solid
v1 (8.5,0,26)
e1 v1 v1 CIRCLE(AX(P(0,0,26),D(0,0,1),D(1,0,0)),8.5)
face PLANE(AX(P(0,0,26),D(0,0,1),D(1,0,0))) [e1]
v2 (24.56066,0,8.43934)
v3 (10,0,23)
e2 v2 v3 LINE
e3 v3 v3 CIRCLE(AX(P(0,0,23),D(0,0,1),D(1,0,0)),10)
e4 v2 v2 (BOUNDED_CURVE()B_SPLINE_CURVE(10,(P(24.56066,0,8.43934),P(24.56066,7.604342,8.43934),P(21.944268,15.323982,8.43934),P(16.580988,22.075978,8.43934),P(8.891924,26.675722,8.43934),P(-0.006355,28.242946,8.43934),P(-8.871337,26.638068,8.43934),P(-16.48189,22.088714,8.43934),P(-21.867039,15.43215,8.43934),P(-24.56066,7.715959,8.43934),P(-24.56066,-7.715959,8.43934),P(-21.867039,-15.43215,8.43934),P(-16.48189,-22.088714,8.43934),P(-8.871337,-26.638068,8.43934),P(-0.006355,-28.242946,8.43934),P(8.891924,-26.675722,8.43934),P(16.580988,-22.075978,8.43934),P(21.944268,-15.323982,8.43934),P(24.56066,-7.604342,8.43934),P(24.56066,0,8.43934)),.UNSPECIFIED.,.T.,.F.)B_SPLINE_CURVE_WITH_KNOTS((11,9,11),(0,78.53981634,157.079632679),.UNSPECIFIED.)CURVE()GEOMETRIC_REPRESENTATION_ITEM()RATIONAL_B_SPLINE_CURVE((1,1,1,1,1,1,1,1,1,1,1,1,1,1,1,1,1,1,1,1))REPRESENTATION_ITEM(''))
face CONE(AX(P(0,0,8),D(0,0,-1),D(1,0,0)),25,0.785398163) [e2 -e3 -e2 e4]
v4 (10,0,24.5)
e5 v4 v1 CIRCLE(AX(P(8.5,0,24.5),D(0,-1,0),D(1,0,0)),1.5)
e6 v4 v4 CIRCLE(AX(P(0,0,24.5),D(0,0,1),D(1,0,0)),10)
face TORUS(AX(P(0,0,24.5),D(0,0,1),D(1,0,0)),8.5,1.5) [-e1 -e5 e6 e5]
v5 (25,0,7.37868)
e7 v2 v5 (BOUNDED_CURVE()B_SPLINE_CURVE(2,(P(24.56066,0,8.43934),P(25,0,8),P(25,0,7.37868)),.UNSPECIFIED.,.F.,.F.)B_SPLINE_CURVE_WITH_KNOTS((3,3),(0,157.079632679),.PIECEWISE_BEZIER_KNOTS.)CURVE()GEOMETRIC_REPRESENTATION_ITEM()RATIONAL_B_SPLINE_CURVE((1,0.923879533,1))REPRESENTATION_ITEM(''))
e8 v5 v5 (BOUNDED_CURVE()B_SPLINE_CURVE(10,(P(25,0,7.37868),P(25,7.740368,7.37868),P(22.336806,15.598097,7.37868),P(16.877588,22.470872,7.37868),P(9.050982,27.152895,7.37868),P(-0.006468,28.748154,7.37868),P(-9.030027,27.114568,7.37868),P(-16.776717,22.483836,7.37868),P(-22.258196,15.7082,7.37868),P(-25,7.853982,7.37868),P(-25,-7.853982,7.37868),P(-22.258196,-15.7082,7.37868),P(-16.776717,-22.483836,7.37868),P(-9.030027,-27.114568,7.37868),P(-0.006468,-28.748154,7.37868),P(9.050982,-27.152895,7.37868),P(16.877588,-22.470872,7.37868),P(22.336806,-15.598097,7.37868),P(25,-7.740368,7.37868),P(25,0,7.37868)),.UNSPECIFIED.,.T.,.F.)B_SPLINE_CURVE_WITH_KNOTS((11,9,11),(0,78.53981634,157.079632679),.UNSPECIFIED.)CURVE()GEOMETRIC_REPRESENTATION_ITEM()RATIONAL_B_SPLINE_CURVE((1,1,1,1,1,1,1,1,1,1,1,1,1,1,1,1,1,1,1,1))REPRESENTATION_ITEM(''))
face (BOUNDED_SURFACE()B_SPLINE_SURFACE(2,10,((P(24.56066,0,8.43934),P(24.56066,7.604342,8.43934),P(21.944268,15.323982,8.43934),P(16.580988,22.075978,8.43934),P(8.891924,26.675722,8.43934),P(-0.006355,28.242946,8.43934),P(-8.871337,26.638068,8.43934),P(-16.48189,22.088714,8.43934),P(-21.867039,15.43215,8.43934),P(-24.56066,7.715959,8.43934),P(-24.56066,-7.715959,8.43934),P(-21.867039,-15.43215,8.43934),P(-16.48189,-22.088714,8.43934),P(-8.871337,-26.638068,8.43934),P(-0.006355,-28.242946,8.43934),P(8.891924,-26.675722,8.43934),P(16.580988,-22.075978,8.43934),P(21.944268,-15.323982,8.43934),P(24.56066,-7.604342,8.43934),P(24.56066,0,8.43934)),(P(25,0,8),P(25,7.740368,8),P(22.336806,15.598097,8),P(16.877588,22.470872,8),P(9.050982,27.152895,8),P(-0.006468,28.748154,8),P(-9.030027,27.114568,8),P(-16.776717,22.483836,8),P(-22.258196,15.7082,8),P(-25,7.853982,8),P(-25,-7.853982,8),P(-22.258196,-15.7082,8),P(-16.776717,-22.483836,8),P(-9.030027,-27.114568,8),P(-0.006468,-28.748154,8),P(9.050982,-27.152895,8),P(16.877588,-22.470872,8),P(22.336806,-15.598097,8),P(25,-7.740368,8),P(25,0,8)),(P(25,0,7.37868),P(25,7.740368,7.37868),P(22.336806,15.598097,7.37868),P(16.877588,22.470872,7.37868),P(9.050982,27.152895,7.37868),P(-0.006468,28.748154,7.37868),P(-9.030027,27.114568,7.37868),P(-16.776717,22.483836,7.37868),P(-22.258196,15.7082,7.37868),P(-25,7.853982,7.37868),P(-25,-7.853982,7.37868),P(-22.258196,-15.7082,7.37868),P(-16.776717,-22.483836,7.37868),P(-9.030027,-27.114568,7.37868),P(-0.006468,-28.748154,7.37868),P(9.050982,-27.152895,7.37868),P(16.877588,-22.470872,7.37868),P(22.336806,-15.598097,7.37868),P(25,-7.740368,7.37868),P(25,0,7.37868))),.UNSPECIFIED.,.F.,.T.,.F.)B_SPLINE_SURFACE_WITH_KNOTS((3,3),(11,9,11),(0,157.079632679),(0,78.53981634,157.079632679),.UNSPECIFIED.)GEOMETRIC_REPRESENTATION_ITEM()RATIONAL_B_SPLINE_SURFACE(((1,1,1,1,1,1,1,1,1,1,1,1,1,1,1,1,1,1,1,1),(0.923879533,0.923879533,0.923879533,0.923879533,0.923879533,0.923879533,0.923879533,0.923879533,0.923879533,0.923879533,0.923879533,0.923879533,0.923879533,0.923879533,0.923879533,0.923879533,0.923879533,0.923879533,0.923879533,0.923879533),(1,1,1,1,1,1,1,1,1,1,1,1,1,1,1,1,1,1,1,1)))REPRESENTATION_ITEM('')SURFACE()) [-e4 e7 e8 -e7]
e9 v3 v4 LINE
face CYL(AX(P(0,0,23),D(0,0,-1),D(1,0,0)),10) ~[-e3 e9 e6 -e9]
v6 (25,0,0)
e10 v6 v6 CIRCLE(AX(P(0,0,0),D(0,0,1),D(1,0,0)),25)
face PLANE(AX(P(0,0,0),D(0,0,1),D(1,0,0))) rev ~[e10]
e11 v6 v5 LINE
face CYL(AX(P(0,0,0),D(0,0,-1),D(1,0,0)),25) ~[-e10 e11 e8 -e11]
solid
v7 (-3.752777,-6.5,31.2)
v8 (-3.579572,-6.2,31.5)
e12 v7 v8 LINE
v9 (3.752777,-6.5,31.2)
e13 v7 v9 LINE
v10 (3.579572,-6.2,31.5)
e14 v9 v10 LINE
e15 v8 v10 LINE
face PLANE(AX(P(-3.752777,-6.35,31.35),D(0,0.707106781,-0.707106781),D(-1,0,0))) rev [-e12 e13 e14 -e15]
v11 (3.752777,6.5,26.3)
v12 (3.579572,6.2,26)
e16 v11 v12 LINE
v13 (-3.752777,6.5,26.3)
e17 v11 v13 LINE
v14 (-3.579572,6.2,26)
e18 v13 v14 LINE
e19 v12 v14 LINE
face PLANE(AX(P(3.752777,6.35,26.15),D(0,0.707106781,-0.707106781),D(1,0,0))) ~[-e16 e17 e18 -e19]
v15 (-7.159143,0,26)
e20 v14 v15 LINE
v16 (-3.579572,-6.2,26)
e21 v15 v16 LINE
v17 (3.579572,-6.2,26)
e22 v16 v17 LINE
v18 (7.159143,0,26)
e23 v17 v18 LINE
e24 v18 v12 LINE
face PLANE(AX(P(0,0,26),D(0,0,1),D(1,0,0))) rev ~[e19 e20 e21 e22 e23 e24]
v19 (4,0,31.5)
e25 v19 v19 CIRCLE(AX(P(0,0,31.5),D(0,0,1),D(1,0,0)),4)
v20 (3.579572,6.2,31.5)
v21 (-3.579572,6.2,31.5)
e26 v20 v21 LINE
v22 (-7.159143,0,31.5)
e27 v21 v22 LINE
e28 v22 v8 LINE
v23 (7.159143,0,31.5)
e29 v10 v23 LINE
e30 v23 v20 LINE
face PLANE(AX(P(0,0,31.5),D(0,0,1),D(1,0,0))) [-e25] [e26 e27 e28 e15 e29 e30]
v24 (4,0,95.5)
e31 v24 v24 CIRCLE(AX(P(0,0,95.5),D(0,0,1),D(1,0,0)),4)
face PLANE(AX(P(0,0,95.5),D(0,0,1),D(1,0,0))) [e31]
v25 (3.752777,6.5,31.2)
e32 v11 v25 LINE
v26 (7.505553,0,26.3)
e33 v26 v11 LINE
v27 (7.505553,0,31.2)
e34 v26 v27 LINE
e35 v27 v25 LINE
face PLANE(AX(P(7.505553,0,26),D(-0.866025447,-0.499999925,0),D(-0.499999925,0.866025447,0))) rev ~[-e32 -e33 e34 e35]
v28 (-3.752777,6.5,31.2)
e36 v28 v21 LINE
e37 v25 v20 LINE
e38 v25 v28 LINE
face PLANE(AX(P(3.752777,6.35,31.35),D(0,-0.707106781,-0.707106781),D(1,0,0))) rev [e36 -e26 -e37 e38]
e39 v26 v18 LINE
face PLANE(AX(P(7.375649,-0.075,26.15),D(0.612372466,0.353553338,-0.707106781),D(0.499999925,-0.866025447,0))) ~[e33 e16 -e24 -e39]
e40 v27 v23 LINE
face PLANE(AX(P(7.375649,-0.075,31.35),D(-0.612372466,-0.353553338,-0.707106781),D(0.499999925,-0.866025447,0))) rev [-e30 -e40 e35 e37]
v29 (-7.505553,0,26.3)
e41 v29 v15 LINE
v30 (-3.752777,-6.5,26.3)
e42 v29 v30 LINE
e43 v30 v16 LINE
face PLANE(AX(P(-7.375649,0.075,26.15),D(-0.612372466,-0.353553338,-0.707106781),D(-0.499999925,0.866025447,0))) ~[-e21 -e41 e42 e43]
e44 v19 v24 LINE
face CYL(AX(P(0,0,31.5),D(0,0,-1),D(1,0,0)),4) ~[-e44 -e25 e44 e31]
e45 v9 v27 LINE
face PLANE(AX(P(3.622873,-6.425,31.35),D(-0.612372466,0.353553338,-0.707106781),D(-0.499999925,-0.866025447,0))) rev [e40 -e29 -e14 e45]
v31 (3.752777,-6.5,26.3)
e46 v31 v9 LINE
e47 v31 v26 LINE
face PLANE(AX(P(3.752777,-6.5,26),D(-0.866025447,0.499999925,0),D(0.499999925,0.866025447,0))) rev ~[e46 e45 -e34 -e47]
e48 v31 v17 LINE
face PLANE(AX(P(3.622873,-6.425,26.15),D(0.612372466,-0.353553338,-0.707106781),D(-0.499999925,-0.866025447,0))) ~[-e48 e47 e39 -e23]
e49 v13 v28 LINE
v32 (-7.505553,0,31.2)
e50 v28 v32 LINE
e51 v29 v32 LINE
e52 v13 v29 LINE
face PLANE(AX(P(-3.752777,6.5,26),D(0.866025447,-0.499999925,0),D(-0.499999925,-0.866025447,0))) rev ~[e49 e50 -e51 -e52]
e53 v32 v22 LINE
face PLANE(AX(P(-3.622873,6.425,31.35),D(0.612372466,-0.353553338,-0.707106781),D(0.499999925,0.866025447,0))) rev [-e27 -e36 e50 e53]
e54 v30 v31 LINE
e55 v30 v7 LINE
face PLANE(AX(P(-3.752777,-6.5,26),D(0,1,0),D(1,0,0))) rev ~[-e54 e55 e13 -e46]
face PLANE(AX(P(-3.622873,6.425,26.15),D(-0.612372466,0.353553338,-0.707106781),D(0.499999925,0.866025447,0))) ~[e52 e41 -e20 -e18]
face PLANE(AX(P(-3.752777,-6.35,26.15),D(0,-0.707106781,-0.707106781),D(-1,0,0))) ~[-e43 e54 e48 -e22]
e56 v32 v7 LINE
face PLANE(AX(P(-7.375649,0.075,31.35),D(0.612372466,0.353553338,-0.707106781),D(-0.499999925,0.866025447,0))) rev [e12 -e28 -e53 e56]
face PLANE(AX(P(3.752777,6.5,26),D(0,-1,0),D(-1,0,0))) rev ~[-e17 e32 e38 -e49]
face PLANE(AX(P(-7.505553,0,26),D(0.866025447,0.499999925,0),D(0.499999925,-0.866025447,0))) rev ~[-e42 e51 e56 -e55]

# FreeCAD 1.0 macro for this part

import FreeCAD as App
import Part
import Sketcher
from FreeCAD import Vector
Q = App.Units.Quantity


def edges_at(feature, points):
    """Names of the edges that pass closest to the given points."""
    edges = feature.Shape.Edges
    near = lambda p: min(range(len(edges)), key=lambda i: edges[i].distToShape(Part.Vertex(*p))[0])
    return sorted({f"Edge{near(p) + 1}" for p in points})

doc = App.newDocument("Part")
body = doc.addObject("PartDesign::Body", "Body")

# Sketch on XY plane
sketch1 = body.newObject("Sketcher::SketchObject", "Sketch")
sketch1.AttachmentSupport = (doc.getObject("XY_Plane"), [""])
sketch1.MapMode = "FlatFace"
sketch1.addGeometry(Part.Circle(Vector(0, 0, 0), Vector(0, 0, 1), 25), False)
sketch1.addConstraint([
    Sketcher.Constraint("Coincident", 0, 3, -1, 1),
    Sketcher.Constraint("Diameter", 0, Q("50 mm")),
])
pad1 = body.newObject("PartDesign::Pad", "Pad")
pad1.Profile = sketch1
pad1.Length = 23
doc.recompute()

chamfer = body.newObject("PartDesign::Chamfer", "Chamfer")
chamfer.Base = (pad1, edges_at(pad1, [(-25, 0, 23)]))
chamfer.Size = 15

# Sketch on XY plane
sketch2 = body.newObject("Sketcher::SketchObject", "Sketch001")
sketch2.AttachmentSupport = (doc.getObject("XY_Plane"), [""])
sketch2.MapMode = "FlatFace"
sketch2.AttachmentOffset = App.Placement(Vector(0, 0, 23), App.Rotation())
sketch2.addGeometry(Part.Circle(Vector(0, 0, 0), Vector(0, 0, 1), 10), False)
sketch2.addConstraint([
    Sketcher.Constraint("Coincident", 0, 3, -1, 1),
    Sketcher.Constraint("Diameter", 0, Q("20 mm")),
])
pad2 = body.newObject("PartDesign::Pad", "Pad001")
pad2.Profile = sketch2
pad2.Length = 3
doc.recompute()

fillet = body.newObject("PartDesign::Fillet", "Fillet")
fillet.Base = (pad2, edges_at(pad2, [(-10, 0, 26), (-25, 0, 8)]))
fillet.Radius = 1.5
body2 = doc.addObject("PartDesign::Body", "Body001")

# Sketch on XY plane
sketch3 = body2.newObject("Sketcher::SketchObject", "Sketch002")
sketch3.AttachmentSupport = (doc.getObject("XY_Plane001"), [""])
sketch3.MapMode = "FlatFace"
sketch3.AttachmentOffset = App.Placement(Vector(0, 0, 26), App.Rotation())
sketch3.addGeometry([
    Part.LineSegment(Vector(8, 0, 0), Vector(4, 6, 0)),  # 0
    Part.LineSegment(Vector(4, 6, 0), Vector(-4, 6, 0)),  # 1
    Part.LineSegment(Vector(-4, 6, 0), Vector(-8, 0, 0)),  # 2
    Part.LineSegment(Vector(-8, 0, 0), Vector(-4, -6, 0)),  # 3
    Part.LineSegment(Vector(-4, -6, 0), Vector(4, -6, 0)),  # 4
    Part.LineSegment(Vector(4, -6, 0), Vector(8, 0, 0)),  # 5
], False)
sketch3.addConstraint([
    Sketcher.Constraint("Coincident", 0, 2, 1, 1),
    Sketcher.Constraint("Coincident", 1, 2, 2, 1),
    Sketcher.Constraint("Coincident", 2, 2, 3, 1),
    Sketcher.Constraint("Coincident", 3, 2, 4, 1),
    Sketcher.Constraint("Coincident", 4, 2, 5, 1),
    Sketcher.Constraint("Coincident", 5, 2, 0, 1),
    Sketcher.Constraint("Horizontal", 1),
    Sketcher.Constraint("Horizontal", 4),
    Sketcher.Constraint("Symmetric", 0, 2, 3, 2, -1, 1),
    Sketcher.Constraint("Symmetric", 2, 2, 5, 2, -1, 1),
    Sketcher.Constraint("PointOnObject", 2, 2, -1),
    Sketcher.Constraint("Parallel", 2, 5),
    Sketcher.Constraint("Vertical", 1, 2, 3, 2),
    Sketcher.Constraint("Angle", 0, Q("119.999995 deg")),
    Sketcher.Constraint("DistanceY", 3, 2, 1, 2, Q("13 mm")),
    Sketcher.Constraint("DistanceX", 1, 2, 1, 1, Q("7.505554 mm")),
])
pad3 = body2.newObject("PartDesign::Pad", "Pad002")
pad3.Profile = sketch3
pad3.Length = 5.5
doc.recompute()

chamfer2 = body2.newObject("PartDesign::Chamfer", "Chamfer001")
chamfer2.Base = (pad3, edges_at(pad3, [
    (5.629, -3.25, 31.5),
    (5.629, 3.25, 31.5),
    (0, 6.5, 31.5),
    (-5.629, 3.25, 31.5),
    (-5.629, -3.25, 31.5),
    (0, -6.5, 31.5),
    (0, -6.5, 26),
    (-5.629, -3.25, 26),
    (-5.629, 3.25, 26),
    (0, 6.5, 26),
    (5.629, 3.25, 26),
    (5.629, -3.25, 26),
]))
chamfer2.Size = 0.3

# Sketch on XY plane
sketch4 = body2.newObject("Sketcher::SketchObject", "Sketch003")
sketch4.AttachmentSupport = (doc.getObject("XY_Plane001"), [""])
sketch4.MapMode = "FlatFace"
sketch4.AttachmentOffset = App.Placement(Vector(0, 0, 31.5), App.Rotation())
sketch4.addGeometry(Part.Circle(Vector(0, 0, 0), Vector(0, 0, 1), 4), False)
sketch4.addConstraint([
    Sketcher.Constraint("Coincident", 0, 3, -1, 1),
    Sketcher.Constraint("Diameter", 0, Q("8 mm")),
])
pad4 = body2.newObject("PartDesign::Pad", "Pad003")
pad4.Profile = sketch4
pad4.Length = 64

doc.recompute()
